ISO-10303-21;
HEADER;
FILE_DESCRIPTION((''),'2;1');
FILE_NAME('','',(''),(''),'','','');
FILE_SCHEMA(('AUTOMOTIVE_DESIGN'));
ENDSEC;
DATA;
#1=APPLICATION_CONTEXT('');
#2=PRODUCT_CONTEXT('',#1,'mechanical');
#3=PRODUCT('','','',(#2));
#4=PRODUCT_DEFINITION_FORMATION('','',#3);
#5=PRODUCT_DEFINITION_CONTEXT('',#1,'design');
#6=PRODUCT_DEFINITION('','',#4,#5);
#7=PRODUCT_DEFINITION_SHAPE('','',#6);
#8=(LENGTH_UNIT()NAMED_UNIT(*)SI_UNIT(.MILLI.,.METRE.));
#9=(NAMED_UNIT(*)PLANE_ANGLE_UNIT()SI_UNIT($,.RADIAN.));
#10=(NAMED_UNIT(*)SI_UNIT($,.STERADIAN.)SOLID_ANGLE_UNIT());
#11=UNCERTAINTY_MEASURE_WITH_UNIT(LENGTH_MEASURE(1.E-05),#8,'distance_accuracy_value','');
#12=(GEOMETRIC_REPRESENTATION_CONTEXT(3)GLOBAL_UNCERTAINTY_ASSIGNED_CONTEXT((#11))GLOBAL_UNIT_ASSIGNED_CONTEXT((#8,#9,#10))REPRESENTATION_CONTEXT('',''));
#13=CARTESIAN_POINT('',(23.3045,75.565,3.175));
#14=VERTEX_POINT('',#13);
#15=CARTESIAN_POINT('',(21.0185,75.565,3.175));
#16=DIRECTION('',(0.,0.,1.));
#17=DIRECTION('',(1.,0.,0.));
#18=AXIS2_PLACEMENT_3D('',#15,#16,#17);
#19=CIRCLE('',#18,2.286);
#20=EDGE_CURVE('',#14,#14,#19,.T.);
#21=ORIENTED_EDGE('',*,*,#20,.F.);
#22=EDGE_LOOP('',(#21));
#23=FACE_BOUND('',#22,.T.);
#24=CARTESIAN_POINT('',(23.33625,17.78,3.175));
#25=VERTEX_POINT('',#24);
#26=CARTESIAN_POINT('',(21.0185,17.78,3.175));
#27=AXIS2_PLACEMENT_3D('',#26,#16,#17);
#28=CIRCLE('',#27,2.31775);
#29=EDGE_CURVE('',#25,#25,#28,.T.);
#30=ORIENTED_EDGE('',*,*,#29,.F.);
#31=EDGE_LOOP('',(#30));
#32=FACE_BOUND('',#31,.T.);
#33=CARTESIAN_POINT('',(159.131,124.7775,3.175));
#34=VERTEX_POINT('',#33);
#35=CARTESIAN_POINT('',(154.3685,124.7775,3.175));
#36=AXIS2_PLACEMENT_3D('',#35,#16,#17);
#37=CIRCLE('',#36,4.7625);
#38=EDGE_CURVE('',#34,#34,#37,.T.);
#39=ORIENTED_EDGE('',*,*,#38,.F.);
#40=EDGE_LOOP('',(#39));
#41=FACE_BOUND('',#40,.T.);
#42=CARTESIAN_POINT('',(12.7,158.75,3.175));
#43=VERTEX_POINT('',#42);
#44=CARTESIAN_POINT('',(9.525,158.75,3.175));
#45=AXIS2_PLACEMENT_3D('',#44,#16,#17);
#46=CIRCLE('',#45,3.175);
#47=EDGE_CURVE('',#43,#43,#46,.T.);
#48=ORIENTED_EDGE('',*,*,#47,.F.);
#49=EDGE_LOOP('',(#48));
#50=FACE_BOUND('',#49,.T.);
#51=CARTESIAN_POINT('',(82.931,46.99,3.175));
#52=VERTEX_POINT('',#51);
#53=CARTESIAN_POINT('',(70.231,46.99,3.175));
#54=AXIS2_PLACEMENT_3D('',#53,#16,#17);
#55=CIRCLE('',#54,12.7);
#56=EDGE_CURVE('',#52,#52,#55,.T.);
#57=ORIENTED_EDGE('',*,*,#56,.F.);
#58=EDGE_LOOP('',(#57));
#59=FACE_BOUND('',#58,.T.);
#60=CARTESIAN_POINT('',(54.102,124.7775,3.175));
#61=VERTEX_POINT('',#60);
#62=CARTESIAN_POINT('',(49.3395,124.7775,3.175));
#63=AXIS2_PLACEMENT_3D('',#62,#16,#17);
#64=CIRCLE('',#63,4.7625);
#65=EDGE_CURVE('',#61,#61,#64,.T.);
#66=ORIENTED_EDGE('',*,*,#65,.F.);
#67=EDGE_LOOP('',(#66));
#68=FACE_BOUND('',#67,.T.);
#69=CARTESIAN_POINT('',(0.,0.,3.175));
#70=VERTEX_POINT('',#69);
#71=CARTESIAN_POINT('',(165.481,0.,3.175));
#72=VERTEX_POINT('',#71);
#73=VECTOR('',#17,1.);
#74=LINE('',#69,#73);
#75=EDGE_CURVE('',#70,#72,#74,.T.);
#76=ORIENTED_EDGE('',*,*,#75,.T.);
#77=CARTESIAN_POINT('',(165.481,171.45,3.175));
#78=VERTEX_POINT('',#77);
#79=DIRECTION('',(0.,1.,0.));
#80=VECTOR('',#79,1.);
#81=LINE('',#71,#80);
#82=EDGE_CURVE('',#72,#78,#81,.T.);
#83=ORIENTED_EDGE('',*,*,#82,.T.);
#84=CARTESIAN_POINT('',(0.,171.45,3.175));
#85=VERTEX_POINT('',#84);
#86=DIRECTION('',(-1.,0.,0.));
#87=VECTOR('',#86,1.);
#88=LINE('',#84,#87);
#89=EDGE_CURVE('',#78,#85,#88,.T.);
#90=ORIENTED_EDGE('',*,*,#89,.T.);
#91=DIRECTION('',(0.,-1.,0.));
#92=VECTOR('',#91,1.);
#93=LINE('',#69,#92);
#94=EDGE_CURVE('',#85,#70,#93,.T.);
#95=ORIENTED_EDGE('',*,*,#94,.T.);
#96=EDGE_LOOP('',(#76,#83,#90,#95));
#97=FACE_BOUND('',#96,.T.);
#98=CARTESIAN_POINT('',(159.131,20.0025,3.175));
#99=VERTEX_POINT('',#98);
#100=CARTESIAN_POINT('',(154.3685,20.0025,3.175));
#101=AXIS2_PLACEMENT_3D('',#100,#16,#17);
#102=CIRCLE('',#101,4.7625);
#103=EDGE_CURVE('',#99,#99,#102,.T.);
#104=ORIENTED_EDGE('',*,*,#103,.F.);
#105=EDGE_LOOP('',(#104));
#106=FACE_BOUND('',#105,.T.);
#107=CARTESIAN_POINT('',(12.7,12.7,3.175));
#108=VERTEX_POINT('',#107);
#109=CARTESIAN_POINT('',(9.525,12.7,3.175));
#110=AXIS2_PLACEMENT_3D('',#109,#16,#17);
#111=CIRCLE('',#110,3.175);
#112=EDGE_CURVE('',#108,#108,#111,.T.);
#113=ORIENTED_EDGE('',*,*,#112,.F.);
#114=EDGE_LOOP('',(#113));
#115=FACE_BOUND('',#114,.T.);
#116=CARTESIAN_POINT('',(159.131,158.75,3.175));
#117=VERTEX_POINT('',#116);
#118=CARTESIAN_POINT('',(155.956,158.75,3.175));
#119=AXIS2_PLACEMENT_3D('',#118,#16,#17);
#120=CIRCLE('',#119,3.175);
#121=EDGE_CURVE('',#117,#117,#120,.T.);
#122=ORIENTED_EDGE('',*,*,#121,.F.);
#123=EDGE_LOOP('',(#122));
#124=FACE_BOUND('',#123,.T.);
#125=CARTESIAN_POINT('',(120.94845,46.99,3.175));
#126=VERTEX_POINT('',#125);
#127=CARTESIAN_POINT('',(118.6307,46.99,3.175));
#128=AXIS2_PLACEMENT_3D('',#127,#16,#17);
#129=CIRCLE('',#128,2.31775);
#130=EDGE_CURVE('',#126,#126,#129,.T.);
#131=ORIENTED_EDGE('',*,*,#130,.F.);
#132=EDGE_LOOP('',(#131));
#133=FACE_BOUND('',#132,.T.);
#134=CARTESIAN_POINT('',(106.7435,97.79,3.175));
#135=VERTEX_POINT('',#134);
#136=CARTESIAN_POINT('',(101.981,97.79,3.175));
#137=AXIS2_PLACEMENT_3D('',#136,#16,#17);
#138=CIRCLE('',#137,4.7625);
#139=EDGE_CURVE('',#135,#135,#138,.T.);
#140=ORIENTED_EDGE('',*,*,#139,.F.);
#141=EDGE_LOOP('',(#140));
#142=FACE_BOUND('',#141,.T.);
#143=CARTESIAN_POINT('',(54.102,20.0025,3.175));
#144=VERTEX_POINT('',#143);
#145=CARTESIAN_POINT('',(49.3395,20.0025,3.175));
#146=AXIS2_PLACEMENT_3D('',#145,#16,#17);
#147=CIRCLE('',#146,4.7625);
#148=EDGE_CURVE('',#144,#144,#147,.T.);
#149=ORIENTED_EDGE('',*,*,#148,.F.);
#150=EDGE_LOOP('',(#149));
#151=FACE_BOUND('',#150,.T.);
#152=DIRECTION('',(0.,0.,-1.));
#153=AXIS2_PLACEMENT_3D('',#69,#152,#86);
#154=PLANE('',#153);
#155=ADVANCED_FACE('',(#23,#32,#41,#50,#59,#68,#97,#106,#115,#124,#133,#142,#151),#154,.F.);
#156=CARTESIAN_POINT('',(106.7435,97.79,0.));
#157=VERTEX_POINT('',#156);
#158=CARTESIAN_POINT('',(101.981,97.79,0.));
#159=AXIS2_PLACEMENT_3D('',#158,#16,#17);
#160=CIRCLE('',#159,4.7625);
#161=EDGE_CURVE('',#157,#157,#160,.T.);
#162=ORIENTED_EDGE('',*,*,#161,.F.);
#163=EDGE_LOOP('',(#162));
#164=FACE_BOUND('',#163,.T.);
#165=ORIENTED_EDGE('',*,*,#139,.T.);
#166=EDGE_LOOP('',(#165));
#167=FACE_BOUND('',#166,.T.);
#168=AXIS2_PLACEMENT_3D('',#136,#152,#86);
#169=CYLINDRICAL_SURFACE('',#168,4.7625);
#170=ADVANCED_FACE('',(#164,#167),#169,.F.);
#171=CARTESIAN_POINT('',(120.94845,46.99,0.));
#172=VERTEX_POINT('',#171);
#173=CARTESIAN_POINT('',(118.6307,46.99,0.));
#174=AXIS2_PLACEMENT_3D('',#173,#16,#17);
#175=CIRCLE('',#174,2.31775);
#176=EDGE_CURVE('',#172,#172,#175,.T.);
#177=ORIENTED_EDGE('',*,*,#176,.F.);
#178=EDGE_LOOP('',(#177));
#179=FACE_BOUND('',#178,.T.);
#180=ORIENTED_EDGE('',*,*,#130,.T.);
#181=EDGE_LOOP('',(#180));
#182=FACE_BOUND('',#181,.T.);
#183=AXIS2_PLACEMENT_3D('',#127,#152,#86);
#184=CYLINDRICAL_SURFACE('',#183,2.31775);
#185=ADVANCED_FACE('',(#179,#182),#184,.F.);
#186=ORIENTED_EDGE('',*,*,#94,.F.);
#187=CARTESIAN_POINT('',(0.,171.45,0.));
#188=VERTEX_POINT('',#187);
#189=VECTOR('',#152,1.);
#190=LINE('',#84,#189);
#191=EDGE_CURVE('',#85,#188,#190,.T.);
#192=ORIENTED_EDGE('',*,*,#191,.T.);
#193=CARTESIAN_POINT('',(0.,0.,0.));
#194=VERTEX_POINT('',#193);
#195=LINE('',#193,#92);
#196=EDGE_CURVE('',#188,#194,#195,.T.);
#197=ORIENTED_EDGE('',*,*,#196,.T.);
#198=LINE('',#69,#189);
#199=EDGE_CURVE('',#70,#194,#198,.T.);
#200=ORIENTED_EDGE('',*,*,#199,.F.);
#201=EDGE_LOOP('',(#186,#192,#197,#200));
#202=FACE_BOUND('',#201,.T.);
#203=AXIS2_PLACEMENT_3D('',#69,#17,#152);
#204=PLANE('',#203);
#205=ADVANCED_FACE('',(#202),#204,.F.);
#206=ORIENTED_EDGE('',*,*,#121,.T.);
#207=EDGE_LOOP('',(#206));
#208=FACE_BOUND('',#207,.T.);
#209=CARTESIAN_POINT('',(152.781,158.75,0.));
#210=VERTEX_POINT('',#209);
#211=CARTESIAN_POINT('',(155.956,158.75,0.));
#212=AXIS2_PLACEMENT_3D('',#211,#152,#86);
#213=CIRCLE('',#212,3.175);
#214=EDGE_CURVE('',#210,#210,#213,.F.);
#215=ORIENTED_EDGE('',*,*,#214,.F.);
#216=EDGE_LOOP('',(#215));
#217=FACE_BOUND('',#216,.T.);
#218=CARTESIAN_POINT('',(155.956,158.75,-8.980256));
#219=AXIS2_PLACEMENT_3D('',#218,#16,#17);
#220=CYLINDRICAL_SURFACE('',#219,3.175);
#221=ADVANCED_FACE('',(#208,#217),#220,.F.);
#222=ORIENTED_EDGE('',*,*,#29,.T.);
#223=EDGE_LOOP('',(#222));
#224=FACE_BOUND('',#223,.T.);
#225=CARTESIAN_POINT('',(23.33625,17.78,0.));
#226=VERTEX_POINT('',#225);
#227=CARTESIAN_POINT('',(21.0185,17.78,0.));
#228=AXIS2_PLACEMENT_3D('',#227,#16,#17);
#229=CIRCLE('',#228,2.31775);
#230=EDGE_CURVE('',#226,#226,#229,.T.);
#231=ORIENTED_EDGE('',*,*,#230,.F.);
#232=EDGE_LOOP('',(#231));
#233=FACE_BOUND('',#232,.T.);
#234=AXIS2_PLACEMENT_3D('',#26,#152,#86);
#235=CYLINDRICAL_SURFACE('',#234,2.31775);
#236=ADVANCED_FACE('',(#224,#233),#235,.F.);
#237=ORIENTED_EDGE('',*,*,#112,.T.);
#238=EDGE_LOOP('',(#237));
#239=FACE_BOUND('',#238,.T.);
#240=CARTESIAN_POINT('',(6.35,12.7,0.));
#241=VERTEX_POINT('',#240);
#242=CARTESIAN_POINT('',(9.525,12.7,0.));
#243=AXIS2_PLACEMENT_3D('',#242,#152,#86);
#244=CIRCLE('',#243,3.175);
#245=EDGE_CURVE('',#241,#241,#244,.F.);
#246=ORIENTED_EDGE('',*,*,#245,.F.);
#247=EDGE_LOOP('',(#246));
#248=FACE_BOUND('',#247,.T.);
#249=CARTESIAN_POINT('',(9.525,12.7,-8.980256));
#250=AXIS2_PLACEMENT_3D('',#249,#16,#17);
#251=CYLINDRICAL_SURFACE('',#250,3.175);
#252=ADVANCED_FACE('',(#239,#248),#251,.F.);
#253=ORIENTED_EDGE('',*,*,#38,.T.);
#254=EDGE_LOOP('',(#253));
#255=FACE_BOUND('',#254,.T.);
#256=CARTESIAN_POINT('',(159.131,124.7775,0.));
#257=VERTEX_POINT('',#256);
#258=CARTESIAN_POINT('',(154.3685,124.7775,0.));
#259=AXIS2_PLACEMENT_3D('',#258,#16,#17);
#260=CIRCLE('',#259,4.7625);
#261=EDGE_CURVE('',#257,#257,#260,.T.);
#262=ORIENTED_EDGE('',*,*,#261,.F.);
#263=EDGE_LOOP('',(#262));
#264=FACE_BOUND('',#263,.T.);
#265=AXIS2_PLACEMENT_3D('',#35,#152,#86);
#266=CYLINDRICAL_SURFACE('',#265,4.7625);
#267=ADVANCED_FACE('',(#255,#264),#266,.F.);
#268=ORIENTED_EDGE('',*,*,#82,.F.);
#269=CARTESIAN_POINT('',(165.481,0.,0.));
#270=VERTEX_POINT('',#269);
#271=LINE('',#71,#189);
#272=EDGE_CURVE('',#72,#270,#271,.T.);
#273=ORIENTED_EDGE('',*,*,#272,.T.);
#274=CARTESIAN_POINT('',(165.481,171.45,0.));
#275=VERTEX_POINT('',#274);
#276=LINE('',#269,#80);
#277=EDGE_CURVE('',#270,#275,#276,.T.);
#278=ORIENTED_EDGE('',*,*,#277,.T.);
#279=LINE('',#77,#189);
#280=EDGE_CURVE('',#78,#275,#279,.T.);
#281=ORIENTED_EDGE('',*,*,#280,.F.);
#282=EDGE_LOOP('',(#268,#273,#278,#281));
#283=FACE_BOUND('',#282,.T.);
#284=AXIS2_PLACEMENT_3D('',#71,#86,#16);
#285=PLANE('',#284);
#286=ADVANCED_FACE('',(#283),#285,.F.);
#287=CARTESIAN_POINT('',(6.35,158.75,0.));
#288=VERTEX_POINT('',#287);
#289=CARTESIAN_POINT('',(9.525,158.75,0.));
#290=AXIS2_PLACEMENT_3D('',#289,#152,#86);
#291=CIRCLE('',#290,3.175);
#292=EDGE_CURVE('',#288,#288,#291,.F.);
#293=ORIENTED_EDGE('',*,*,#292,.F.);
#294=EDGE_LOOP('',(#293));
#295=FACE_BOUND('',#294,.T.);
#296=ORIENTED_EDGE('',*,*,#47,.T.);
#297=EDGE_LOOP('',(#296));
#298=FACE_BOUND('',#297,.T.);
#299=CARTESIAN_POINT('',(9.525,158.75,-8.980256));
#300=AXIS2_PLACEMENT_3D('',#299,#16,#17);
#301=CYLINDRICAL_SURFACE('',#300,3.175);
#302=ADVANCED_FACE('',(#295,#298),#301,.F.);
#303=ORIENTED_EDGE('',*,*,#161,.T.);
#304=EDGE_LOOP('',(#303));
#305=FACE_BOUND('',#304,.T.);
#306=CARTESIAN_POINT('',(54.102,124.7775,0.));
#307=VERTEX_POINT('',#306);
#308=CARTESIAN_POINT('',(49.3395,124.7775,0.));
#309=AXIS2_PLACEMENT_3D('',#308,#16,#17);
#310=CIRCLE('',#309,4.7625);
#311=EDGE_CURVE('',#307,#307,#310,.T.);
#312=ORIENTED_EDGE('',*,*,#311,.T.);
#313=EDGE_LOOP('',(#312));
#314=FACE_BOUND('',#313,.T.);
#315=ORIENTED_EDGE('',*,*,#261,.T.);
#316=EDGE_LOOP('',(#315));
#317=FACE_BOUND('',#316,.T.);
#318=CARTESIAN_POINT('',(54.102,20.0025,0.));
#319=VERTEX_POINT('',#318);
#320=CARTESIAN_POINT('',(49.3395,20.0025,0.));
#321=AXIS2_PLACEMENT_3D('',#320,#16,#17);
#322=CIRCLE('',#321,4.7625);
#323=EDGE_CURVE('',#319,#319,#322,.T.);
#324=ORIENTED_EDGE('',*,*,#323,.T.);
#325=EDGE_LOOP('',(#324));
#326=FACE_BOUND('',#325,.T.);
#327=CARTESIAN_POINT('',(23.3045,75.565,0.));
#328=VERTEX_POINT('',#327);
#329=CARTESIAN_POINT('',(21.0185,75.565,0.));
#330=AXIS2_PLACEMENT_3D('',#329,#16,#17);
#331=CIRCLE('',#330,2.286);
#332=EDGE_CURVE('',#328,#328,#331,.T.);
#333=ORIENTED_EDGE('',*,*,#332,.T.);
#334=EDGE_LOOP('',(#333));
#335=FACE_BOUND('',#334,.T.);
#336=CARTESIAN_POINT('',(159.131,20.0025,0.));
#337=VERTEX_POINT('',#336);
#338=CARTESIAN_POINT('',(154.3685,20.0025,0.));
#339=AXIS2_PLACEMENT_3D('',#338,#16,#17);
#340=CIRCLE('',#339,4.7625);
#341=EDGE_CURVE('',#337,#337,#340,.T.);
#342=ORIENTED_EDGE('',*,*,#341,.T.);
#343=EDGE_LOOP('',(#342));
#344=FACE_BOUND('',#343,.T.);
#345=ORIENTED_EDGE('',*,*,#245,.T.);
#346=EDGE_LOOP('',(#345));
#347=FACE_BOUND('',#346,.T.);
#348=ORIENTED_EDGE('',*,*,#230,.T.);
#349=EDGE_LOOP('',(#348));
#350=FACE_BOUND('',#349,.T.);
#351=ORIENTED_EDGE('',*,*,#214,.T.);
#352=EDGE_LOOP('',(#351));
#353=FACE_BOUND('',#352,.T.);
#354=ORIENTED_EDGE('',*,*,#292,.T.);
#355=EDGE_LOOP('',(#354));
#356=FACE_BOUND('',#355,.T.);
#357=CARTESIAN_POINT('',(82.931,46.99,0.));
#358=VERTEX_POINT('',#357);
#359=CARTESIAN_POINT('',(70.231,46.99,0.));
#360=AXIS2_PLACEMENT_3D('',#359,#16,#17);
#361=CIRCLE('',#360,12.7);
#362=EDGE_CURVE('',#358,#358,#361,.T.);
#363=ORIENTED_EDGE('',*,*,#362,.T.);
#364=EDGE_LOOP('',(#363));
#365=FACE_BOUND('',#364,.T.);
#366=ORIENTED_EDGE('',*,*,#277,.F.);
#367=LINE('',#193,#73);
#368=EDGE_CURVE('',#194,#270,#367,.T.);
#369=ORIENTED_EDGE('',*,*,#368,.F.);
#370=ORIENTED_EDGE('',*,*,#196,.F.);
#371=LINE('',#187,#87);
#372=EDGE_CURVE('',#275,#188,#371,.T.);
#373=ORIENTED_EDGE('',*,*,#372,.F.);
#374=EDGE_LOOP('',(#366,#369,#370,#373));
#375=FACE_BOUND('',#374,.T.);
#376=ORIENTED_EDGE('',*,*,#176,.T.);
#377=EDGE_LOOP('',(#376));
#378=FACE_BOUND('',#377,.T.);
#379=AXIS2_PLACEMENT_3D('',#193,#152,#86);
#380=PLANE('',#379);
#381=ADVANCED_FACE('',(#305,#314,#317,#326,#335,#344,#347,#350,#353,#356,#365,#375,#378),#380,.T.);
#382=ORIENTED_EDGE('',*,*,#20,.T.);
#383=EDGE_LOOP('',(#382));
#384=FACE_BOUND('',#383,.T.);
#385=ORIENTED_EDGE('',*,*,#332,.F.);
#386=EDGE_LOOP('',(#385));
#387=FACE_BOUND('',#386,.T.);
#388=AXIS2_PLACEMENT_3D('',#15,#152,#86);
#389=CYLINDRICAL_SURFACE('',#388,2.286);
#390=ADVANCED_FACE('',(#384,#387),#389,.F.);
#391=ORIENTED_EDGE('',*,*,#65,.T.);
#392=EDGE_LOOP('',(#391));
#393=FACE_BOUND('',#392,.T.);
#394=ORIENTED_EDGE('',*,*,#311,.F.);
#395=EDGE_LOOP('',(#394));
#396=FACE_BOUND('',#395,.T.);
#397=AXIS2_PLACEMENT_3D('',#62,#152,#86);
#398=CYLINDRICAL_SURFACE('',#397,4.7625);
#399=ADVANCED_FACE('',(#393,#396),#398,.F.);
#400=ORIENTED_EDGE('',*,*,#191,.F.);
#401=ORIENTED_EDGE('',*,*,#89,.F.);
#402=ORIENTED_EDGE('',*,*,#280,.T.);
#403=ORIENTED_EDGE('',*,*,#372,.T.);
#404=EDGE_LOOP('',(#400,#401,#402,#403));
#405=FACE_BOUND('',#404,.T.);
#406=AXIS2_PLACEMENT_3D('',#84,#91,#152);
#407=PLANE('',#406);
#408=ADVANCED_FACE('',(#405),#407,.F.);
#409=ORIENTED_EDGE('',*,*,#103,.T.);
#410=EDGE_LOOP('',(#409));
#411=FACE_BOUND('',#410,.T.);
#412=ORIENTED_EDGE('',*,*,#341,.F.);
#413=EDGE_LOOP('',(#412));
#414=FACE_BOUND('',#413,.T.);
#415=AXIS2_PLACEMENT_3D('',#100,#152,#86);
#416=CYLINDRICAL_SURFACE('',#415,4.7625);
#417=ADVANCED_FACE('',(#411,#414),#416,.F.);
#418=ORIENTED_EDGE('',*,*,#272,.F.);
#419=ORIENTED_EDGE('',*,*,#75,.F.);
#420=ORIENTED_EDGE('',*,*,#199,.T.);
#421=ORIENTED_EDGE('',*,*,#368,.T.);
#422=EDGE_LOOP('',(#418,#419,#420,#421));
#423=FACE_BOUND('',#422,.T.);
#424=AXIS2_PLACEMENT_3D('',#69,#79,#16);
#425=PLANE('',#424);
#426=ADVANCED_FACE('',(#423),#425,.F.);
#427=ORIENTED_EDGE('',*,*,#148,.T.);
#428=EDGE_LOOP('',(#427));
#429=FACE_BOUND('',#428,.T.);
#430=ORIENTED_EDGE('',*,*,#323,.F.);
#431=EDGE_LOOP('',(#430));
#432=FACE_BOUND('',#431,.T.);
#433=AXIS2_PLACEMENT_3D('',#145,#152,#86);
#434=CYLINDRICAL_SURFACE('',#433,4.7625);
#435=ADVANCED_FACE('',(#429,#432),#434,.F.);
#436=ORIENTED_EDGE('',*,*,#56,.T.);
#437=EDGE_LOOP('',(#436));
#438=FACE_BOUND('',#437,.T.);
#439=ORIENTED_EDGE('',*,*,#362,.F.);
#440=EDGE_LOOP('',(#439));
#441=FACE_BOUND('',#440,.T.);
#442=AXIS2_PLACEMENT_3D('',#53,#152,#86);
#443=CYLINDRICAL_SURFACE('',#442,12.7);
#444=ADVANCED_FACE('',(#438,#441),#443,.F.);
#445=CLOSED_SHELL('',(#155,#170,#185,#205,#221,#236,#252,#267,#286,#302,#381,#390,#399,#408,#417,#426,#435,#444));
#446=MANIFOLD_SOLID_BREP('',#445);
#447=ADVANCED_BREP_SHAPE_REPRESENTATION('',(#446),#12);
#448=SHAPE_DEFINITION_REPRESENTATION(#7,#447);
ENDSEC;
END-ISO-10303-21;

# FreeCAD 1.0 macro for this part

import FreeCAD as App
import Part
import Sketcher
Q = App.Units.Quantity


def add_polygon(sketch, points):
    """Adds a closed chain of lines whose ends are joined by coincident constraints."""
    first, n = sketch.GeometryCount, len(points)
    for a, b in zip(points, points[1:] + points[:1]):
        sketch.addGeometry(Part.LineSegment(App.Vector(*a, 0), App.Vector(*b, 0)), False)
    for i in range(n):
        sketch.addConstraint(Sketcher.Constraint("Coincident", first + i, 2, first + (i + 1) % n, 1))

doc = App.newDocument("Part")
body = doc.addObject("PartDesign::Body", "Body")

sketch1 = body.newObject("Sketcher::SketchObject", "Sketch")
sketch1.AttachmentSupport = (doc.getObject("XY_Plane"), [""])
sketch1.MapMode = "FlatFace"
add_polygon(sketch1, [(0, 171.45), (0, 0), (165.481, 0), (165.481, 171.45)])
sketch1.addGeometry(Part.Circle(App.Vector(21.0185, 17.78, 0), App.Vector(0, 0, 1), 2.31775), False)
sketch1.addGeometry(Part.Circle(App.Vector(49.3395, 20.0025, 0), App.Vector(0, 0, 1), 4.7625), False)
sketch1.addGeometry(Part.Circle(App.Vector(70.231, 46.99, 0), App.Vector(0, 0, 1), 12.7), False)
sketch1.addGeometry(Part.Circle(App.Vector(154.3685, 20.0025, 0), App.Vector(0, 0, 1), 4.7625), False)
sketch1.addGeometry(Part.Circle(App.Vector(118.6307, 46.99, 0), App.Vector(0, 0, 1), 2.31775), False)
sketch1.addGeometry(Part.Circle(App.Vector(21.0185, 75.565, 0), App.Vector(0, 0, 1), 2.286), False)
sketch1.addGeometry(Part.Circle(App.Vector(49.3395, 124.7775, 0), App.Vector(0, 0, 1), 4.7625), False)
sketch1.addGeometry(Part.Circle(App.Vector(101.981, 97.79, 0), App.Vector(0, 0, 1), 4.7625), False)
sketch1.addGeometry(Part.Circle(App.Vector(154.3685, 124.7775, 0), App.Vector(0, 0, 1), 4.7625), False)
sketch1.addConstraint([
    Sketcher.Constraint("Vertical", 0),
    Sketcher.Constraint("Horizontal", 1),
    Sketcher.Constraint("Vertical", 2),
    Sketcher.Constraint("Horizontal", 3),
    Sketcher.Constraint("Coincident", 0, 2, -1, 1),
    Sketcher.Constraint("Equal", 5, 7),
    Sketcher.Constraint("Equal", 4, 8),
    Sketcher.Constraint("Equal", 7, 10),
    Sketcher.Constraint("Equal", 10, 11),
    Sketcher.Constraint("Equal", 11, 12),
    Sketcher.Constraint("Horizontal", 5, 3, 7, 3),
    Sketcher.Constraint("Horizontal", 6, 3, 8, 3),
    Sketcher.Constraint("Horizontal", 10, 3, 12, 3),
    Sketcher.Constraint("Vertical", 4, 3, 9, 3),
    Sketcher.Constraint("Vertical", 5, 3, 10, 3),
    Sketcher.Constraint("Vertical", 7, 3, 12, 3),
    Sketcher.Constraint("Diameter", 6, Q("1 in")),
    Sketcher.Constraint("Diameter", 9, Q("0.18 in")),
    Sketcher.Constraint("Diameter", 5, Q("0.375 in")),
    Sketcher.Constraint("DistanceY", 8, 3, 11, 3, Q("2 in")),
    Sketcher.Constraint("Diameter", 4, Q("0.1825 in")),
    Sketcher.Constraint("DistanceY", 0, 2, 0, 1, Q("6.75 in")),
    Sketcher.Constraint("DistanceY", -1, 1, 4, 3, Q("0.7 in")),
    Sketcher.Constraint("DistanceX", 11, 3, 1, 2, Q("2.5 in")),
    Sketcher.Constraint("DistanceY", 11, 3, 2, 2, Q("2.9 in")),
    Sketcher.Constraint("DistanceX", 1, 1, 1, 2, Q("6.515 in")),
    Sketcher.Constraint("DistanceX", 4, 3, 7, 3, Q("5.25 in")),
    Sketcher.Constraint("DistanceX", 6, 3, 11, 3, Q("1.25 in")),
    Sketcher.Constraint("DistanceY", -1, 1, 9, 3, Q("2.975 in")),
    Sketcher.Constraint("DistanceX", 4, 3, 5, 3, Q("1.115 in")),
    Sketcher.Constraint("DistanceY", 5, 3, 6, 3, Q("1.0625 in")),
    Sketcher.Constraint("DistanceX", 4, 3, 6, 3, Q("1.9375 in")),
    Sketcher.Constraint("DistanceX", 8, 3, 7, 3, Q("1.407 in")),
    Sketcher.Constraint("DistanceY", 9, 3, 10, 3, Q("1.9375 in")),
])
pad1 = body.newObject("PartDesign::Pad", "Pad")
pad1.Profile = sketch1
pad1.Length = Q("0.125 in")

sketch2 = body.newObject("Sketcher::SketchObject", "Sketch001")
sketch2.AttachmentSupport = (doc.getObject("XY_Plane"), [""])
sketch2.MapMode = "FlatFace"
sketch2.AttachmentOffset = App.Placement(App.Vector(0, 0, 0.125 * 25.4), App.Rotation())
sketch2.addGeometry([
    Part.Circle(App.Vector(9.525, 158.75, 0), App.Vector(0, 0, 1), 3.175),
    Part.Circle(App.Vector(9.525, 12.7, 0), App.Vector(0, 0, 1), 3.175),
    Part.Circle(App.Vector(155.956, 158.75, 0), App.Vector(0, 0, 1), 3.175),
], False)
sketch2.addConstraint([
    Sketcher.Constraint("Equal", 0, 1),
    Sketcher.Constraint("Equal", 1, 2),
    Sketcher.Constraint("Horizontal", 0, 3, 2, 3),
    Sketcher.Constraint("Vertical", 0, 3, 1, 3),
    Sketcher.Constraint("Diameter", 0, Q("0.25 in")),
    Sketcher.Constraint("DistanceY", -1, 1, 1, 3, Q("0.5 in")),
    Sketcher.Constraint("DistanceY", -1, 1, 0, 3, Q("6.25 in")),
    Sketcher.Constraint("DistanceX", -1, 1, 2, 3, Q("6.14 in")),
    Sketcher.Constraint("DistanceX", -1, 1, 0, 3, Q("0.375 in")),
])
pocket1 = body.newObject("PartDesign::Pocket", "Pocket")
pocket1.Profile = sketch2
pocket1.Length = Q("0.125 in")

doc.recompute()
